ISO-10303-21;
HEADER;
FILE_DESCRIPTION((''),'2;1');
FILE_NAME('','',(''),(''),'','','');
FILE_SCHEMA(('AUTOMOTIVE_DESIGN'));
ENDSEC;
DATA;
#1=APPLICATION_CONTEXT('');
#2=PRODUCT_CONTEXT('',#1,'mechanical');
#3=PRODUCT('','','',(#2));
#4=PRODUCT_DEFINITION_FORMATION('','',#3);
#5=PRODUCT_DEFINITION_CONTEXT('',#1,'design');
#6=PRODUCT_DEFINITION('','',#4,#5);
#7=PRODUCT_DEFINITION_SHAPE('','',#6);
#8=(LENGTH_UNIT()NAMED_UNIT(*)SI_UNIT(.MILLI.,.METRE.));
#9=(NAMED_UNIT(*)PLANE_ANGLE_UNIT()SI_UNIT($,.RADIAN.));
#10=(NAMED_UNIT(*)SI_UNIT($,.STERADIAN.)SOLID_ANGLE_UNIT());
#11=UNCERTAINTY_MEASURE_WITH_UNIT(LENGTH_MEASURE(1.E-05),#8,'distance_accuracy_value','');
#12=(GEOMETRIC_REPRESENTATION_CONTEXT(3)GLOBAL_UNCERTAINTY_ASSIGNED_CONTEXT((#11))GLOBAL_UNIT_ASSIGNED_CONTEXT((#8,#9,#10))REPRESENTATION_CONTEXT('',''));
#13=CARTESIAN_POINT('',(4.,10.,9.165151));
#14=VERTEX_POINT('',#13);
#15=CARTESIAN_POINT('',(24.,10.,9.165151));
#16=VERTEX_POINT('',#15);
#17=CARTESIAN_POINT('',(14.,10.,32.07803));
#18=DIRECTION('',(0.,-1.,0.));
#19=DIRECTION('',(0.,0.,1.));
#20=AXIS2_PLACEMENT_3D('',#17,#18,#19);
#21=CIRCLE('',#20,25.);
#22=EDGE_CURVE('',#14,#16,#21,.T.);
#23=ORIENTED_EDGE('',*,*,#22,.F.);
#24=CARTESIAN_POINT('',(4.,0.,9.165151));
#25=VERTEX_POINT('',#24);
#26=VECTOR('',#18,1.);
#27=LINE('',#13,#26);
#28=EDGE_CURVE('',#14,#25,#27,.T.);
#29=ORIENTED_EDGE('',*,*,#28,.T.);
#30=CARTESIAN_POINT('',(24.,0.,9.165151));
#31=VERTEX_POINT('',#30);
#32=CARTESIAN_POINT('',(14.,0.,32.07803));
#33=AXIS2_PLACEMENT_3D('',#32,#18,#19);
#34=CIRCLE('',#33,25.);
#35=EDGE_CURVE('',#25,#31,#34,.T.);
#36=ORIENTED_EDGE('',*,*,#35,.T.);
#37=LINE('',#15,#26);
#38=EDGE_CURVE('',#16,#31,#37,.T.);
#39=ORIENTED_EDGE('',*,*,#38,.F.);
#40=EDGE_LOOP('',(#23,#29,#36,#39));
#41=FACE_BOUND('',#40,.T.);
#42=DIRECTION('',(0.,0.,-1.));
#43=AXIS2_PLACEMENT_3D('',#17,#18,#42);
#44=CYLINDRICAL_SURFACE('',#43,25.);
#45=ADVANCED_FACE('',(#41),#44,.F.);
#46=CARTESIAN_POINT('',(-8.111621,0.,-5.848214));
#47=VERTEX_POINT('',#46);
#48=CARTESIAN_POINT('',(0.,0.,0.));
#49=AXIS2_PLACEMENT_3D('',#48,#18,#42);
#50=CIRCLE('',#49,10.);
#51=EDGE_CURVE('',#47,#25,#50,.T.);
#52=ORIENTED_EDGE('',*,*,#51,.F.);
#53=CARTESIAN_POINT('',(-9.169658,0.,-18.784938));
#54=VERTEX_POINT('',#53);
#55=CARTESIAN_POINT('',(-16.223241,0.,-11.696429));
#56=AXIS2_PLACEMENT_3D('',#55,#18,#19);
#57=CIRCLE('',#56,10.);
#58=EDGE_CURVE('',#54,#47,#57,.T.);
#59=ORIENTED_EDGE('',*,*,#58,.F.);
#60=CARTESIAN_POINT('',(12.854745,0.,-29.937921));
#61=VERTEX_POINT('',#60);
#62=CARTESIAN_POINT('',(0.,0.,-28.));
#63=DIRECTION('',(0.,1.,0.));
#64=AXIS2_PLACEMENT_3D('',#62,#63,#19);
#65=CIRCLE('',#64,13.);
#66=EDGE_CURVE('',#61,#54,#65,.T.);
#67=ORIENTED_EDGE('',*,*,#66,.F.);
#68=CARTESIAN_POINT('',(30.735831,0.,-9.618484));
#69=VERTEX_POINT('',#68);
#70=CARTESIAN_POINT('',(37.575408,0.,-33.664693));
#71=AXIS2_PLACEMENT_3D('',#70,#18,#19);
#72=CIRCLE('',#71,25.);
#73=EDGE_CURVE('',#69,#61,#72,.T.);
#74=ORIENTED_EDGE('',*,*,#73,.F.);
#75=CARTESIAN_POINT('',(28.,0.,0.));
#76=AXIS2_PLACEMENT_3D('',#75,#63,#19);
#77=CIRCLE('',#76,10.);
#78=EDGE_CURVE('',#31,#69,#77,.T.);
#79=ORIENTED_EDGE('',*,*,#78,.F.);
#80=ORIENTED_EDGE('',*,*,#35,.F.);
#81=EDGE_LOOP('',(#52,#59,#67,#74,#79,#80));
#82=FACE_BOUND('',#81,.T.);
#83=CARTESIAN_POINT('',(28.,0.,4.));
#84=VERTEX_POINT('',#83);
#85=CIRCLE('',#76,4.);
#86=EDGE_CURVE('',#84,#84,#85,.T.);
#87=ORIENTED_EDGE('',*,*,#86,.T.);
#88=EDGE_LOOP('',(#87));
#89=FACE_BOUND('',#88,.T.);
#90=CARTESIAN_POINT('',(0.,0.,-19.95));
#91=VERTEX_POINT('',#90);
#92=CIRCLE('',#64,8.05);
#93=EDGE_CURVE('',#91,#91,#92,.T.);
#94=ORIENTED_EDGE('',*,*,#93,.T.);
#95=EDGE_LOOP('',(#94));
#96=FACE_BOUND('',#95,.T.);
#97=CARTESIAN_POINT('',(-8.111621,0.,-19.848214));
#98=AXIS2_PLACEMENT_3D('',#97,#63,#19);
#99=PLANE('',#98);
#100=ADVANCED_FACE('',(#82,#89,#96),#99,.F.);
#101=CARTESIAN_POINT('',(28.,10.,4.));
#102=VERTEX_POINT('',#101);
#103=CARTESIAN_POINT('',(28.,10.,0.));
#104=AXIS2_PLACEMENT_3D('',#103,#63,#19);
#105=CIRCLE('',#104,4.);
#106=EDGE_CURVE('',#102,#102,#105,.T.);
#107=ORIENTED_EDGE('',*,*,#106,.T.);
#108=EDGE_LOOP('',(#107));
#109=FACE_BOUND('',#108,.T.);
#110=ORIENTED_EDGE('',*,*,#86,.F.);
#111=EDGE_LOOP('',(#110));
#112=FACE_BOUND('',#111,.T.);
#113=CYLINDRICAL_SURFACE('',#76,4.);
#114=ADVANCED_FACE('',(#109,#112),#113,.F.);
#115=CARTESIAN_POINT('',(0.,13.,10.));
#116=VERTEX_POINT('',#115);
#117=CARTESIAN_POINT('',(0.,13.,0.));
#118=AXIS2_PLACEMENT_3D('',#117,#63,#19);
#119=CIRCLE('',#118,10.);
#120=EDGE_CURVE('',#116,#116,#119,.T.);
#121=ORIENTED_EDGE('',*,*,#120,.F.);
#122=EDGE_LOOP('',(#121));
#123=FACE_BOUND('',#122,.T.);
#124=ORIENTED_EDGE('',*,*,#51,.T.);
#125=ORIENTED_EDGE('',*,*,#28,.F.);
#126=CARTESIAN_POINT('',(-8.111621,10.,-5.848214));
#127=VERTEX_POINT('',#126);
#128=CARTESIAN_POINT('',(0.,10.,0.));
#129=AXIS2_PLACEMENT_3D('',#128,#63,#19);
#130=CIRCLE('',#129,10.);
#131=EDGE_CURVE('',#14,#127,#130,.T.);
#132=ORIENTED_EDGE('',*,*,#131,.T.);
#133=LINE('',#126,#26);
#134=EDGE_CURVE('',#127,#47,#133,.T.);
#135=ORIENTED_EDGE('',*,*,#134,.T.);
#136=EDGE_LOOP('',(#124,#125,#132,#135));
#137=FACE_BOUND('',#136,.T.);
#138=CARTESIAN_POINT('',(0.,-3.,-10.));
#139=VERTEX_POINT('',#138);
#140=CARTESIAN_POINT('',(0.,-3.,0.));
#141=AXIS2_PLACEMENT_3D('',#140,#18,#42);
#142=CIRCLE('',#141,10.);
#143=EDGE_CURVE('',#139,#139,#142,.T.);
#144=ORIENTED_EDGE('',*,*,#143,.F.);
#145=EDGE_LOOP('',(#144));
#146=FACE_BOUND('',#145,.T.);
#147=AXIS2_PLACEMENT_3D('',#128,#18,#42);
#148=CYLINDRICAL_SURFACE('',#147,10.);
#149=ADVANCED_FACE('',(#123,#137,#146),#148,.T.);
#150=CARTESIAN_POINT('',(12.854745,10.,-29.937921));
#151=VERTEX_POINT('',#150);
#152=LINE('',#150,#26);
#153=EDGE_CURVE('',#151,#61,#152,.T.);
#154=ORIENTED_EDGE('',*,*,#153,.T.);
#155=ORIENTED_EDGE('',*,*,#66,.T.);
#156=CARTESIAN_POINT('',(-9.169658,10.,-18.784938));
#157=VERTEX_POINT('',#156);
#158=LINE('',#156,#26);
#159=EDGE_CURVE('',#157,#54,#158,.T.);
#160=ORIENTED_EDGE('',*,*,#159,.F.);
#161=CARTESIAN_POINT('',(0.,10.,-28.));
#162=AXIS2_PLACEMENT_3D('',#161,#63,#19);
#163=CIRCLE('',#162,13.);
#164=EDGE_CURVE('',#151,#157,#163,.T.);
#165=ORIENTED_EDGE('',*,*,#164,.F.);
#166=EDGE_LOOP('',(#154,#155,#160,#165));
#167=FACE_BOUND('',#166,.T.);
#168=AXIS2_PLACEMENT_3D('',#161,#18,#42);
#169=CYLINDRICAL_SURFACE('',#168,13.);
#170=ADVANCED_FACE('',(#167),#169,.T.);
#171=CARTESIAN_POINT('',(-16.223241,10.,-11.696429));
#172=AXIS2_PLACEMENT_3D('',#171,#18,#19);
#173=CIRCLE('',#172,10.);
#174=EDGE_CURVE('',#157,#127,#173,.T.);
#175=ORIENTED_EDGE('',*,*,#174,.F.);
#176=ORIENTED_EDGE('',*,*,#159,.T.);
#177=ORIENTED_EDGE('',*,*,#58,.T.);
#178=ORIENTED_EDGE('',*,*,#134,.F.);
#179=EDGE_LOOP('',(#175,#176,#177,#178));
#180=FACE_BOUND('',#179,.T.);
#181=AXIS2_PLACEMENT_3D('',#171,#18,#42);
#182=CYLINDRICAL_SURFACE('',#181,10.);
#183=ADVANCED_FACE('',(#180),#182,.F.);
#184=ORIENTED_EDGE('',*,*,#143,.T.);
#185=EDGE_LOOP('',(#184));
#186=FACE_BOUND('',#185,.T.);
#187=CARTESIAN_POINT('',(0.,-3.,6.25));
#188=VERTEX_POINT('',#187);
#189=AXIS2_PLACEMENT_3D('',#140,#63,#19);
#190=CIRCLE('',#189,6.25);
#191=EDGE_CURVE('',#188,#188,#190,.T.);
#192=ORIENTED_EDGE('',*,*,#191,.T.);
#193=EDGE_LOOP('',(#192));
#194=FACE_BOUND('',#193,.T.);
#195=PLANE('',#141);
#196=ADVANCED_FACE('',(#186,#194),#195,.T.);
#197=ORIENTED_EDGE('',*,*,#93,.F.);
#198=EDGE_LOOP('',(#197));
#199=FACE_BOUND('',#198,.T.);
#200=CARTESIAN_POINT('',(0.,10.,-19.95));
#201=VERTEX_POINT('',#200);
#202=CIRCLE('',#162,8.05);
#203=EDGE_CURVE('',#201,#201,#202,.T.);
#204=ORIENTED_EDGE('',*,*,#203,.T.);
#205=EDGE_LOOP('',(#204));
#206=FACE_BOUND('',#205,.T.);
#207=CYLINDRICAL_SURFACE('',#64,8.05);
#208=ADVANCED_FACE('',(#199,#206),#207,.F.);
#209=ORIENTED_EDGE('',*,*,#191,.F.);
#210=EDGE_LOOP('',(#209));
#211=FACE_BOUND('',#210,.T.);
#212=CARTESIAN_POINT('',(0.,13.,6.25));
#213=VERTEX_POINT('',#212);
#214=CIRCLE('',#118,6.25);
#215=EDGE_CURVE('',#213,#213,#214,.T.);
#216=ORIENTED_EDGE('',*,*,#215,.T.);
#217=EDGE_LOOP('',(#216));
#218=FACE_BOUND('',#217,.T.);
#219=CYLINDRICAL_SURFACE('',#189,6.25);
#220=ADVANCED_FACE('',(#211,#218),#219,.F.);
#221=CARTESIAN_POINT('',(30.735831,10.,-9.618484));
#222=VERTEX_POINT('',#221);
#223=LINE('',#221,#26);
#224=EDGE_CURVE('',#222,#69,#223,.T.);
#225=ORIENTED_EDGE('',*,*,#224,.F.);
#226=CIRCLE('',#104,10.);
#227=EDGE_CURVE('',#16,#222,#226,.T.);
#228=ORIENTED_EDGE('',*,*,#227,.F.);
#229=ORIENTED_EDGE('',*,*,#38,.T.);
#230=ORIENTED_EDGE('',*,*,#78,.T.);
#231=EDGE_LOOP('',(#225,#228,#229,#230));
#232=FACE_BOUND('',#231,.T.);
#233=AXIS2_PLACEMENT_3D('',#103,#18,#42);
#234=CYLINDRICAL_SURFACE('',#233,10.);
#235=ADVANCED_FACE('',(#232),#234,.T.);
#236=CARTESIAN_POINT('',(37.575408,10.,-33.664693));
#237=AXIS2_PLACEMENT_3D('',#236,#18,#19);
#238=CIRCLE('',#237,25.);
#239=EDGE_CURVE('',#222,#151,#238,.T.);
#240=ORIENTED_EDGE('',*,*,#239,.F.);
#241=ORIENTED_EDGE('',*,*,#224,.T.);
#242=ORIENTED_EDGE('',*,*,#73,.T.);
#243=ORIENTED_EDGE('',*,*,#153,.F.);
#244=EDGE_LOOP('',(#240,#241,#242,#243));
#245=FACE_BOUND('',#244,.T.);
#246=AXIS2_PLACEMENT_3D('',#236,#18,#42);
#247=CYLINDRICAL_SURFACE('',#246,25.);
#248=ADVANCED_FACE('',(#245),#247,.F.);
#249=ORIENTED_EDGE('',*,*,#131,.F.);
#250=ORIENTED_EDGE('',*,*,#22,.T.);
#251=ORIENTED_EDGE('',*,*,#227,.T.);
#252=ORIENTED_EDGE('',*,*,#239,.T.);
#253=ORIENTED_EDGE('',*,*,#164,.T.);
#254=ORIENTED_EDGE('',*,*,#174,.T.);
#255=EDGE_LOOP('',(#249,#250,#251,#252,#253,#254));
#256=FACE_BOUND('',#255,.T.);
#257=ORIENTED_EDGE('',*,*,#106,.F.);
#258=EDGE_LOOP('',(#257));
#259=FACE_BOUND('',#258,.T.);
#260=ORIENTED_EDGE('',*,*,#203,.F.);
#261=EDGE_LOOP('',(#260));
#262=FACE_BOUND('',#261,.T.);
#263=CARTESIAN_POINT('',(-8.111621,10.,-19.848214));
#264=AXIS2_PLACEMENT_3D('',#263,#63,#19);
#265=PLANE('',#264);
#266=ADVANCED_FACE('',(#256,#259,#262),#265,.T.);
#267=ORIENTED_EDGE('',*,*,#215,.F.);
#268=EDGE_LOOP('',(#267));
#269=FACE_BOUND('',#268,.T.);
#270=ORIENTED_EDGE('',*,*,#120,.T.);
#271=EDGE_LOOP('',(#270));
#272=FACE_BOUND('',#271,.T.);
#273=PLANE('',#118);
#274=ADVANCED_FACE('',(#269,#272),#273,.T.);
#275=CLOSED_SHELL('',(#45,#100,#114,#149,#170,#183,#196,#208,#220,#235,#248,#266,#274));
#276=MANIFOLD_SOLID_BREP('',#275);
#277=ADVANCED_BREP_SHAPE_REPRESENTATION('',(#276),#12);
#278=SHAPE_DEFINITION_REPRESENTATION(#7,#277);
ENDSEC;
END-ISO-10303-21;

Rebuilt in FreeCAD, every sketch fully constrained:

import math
import FreeCAD as App
import Part
import Sketcher

V = App.Vector
Q = App.Units.Quantity

doc = App.newDocument("Part")
body = doc.addObject("PartDesign::Body", "Body")

# Sketch on XZ plane
sketch1 = body.newObject("Sketcher::SketchObject", "Sketch")
sketch1.AttachmentSupport = (doc.getObject("XZ_Plane"), [""])
sketch1.MapMode = "FlatFace"
sketch1.addGeometry([
    Part.ArcOfCircle(Part.Circle(V(0, 0, 0), V(0, 0, 1), 10), math.radians(66), math.radians(216)),  # 0
    Part.ArcOfCircle(Part.Circle(V(14, 32, 0), V(0, 0, 1), 25), math.radians(-114), math.radians(-66)),  # 1
    Part.ArcOfCircle(Part.Circle(V(28, 0, 0), V(0, 0, 1), 10), math.radians(-74), math.radians(114)),  # 2
    Part.ArcOfCircle(Part.Circle(V(38, -34, 0), V(0, 0, 1), 25), math.radians(106), math.radians(171)),  # 3
    Part.ArcOfCircle(Part.Circle(V(0, -28, 0), V(0, 0, 1), 13), math.radians(135), math.radians(351)),  # 4
    Part.ArcOfCircle(Part.Circle(V(-16, -12, 0), V(0, 0, 1), 10), math.radians(-45), math.radians(36)),  # 5
], False)
sketch1.addConstraint([
    Sketcher.Constraint("Tangent", 0, 1, 1, 1),
    Sketcher.Constraint("Tangent", 1, 2, 2, 2),
    Sketcher.Constraint("Tangent", 2, 1, 3, 1),
    Sketcher.Constraint("Tangent", 3, 2, 4, 2),
    Sketcher.Constraint("Tangent", 4, 1, 5, 1),
    Sketcher.Constraint("Tangent", 5, 2, 0, 2),
    Sketcher.Constraint("Coincident", 0, 3, -1, 1),
    Sketcher.Constraint("Equal", 0, 2),
    Sketcher.Constraint("Equal", 1, 3),
    Sketcher.Constraint("Equal", 2, 5),
    Sketcher.Constraint("PointOnObject", 2, 3, -1),
    Sketcher.Constraint("PointOnObject", 4, 3, -2),
    Sketcher.Constraint("Radius", 0, Q("10 mm")),
    Sketcher.Constraint("Radius", 1, Q("25 mm")),
    Sketcher.Constraint("Radius", 4, Q("13 mm")),
    Sketcher.Constraint("DistanceX", -1, 1, 1, 3, Q("14 mm")),
    Sketcher.Constraint("DistanceY", 4, 3, -1, 1, Q("28 mm")),
])
pad1 = body.newObject("PartDesign::Pad", "Pad")
pad1.Profile = sketch1
pad1.Length = 10
pad1.Reversed = True

# Sketch on XZ plane
sketch2 = body.newObject("Sketcher::SketchObject", "Sketch001")
sketch2.AttachmentSupport = (doc.getObject("XZ_Plane"), [""])
sketch2.MapMode = "FlatFace"
sketch2.AttachmentOffset = App.Placement(V(0, 0, -10), App.Rotation())
sketch2.addGeometry([
    Part.Circle(V(0, -28, 0), V(0, 0, 1), 8.1),
    Part.Circle(V(28, 0, 0), V(0, 0, 1), 4),
], False)
sketch2.addConstraint([
    Sketcher.Constraint("PointOnObject", 0, 3, -2),
    Sketcher.Constraint("PointOnObject", 1, 3, -1),
    Sketcher.Constraint("Diameter", 1, Q("8 mm")),
    Sketcher.Constraint("Diameter", 0, Q("16.1 mm")),
    Sketcher.Constraint("DistanceY", 0, 3, -1, 1, Q("28 mm")),
    Sketcher.Constraint("DistanceX", -1, 1, 1, 3, Q("28 mm")),
])
pocket1 = body.newObject("PartDesign::Pocket", "Pocket")
pocket1.Profile = sketch2
pocket1.Length = 10
pocket1.Reversed = True

# Sketch on XZ plane
sketch3 = body.newObject("Sketcher::SketchObject", "Sketch002")
sketch3.AttachmentSupport = (doc.getObject("XZ_Plane"), [""])
sketch3.MapMode = "FlatFace"
sketch3.AttachmentOffset = App.Placement(V(0, 0, -10), App.Rotation())
sketch3.addGeometry(Part.Circle(V(0, 0, 0), V(0, 0, 1), 10), False)
sketch3.addConstraint([
    Sketcher.Constraint("Coincident", 0, 3, -1, 1),
    Sketcher.Constraint("Diameter", 0, Q("20 mm")),
])
pad2 = body.newObject("PartDesign::Pad", "Pad001")
pad2.Profile = sketch3
pad2.Length = 3
pad2.Reversed = True

# Sketch on XZ plane
sketch4 = body.newObject("Sketcher::SketchObject", "Sketch003")
sketch4.AttachmentSupport = (doc.getObject("XZ_Plane"), [""])
sketch4.MapMode = "FlatFace"
sketch4.AttachmentOffset = App.Placement(V(0, 0, 3), App.Rotation())
sketch4.addGeometry(Part.Circle(V(0, 0, 0), V(0, 0, 1), 10), False)
sketch4.addConstraint([
    Sketcher.Constraint("Coincident", 0, 3, -1, 1),
    Sketcher.Constraint("Diameter", 0, Q("20 mm")),
])
pad3 = body.newObject("PartDesign::Pad", "Pad002")
pad3.Profile = sketch4
pad3.Length = 3
pad3.Reversed = True

# Sketch on XZ plane
sketch5 = body.newObject("Sketcher::SketchObject", "Sketch004")
sketch5.AttachmentSupport = (doc.getObject("XZ_Plane"), [""])
sketch5.MapMode = "FlatFace"
sketch5.AttachmentOffset = App.Placement(V(0, 0, -13), App.Rotation())
sketch5.addGeometry(Part.Circle(V(0, 0, 0), V(0, 0, 1), 6), False)
sketch5.addConstraint([
    Sketcher.Constraint("Coincident", 0, 3, -1, 1),
    Sketcher.Constraint("Diameter", 0, Q("12.5 mm")),
])
pocket2 = body.newObject("PartDesign::Pocket", "Pocket001")
pocket2.Profile = sketch5
pocket2.Type = "ThroughAll"
pocket2.Reversed = True

doc.recompute()
